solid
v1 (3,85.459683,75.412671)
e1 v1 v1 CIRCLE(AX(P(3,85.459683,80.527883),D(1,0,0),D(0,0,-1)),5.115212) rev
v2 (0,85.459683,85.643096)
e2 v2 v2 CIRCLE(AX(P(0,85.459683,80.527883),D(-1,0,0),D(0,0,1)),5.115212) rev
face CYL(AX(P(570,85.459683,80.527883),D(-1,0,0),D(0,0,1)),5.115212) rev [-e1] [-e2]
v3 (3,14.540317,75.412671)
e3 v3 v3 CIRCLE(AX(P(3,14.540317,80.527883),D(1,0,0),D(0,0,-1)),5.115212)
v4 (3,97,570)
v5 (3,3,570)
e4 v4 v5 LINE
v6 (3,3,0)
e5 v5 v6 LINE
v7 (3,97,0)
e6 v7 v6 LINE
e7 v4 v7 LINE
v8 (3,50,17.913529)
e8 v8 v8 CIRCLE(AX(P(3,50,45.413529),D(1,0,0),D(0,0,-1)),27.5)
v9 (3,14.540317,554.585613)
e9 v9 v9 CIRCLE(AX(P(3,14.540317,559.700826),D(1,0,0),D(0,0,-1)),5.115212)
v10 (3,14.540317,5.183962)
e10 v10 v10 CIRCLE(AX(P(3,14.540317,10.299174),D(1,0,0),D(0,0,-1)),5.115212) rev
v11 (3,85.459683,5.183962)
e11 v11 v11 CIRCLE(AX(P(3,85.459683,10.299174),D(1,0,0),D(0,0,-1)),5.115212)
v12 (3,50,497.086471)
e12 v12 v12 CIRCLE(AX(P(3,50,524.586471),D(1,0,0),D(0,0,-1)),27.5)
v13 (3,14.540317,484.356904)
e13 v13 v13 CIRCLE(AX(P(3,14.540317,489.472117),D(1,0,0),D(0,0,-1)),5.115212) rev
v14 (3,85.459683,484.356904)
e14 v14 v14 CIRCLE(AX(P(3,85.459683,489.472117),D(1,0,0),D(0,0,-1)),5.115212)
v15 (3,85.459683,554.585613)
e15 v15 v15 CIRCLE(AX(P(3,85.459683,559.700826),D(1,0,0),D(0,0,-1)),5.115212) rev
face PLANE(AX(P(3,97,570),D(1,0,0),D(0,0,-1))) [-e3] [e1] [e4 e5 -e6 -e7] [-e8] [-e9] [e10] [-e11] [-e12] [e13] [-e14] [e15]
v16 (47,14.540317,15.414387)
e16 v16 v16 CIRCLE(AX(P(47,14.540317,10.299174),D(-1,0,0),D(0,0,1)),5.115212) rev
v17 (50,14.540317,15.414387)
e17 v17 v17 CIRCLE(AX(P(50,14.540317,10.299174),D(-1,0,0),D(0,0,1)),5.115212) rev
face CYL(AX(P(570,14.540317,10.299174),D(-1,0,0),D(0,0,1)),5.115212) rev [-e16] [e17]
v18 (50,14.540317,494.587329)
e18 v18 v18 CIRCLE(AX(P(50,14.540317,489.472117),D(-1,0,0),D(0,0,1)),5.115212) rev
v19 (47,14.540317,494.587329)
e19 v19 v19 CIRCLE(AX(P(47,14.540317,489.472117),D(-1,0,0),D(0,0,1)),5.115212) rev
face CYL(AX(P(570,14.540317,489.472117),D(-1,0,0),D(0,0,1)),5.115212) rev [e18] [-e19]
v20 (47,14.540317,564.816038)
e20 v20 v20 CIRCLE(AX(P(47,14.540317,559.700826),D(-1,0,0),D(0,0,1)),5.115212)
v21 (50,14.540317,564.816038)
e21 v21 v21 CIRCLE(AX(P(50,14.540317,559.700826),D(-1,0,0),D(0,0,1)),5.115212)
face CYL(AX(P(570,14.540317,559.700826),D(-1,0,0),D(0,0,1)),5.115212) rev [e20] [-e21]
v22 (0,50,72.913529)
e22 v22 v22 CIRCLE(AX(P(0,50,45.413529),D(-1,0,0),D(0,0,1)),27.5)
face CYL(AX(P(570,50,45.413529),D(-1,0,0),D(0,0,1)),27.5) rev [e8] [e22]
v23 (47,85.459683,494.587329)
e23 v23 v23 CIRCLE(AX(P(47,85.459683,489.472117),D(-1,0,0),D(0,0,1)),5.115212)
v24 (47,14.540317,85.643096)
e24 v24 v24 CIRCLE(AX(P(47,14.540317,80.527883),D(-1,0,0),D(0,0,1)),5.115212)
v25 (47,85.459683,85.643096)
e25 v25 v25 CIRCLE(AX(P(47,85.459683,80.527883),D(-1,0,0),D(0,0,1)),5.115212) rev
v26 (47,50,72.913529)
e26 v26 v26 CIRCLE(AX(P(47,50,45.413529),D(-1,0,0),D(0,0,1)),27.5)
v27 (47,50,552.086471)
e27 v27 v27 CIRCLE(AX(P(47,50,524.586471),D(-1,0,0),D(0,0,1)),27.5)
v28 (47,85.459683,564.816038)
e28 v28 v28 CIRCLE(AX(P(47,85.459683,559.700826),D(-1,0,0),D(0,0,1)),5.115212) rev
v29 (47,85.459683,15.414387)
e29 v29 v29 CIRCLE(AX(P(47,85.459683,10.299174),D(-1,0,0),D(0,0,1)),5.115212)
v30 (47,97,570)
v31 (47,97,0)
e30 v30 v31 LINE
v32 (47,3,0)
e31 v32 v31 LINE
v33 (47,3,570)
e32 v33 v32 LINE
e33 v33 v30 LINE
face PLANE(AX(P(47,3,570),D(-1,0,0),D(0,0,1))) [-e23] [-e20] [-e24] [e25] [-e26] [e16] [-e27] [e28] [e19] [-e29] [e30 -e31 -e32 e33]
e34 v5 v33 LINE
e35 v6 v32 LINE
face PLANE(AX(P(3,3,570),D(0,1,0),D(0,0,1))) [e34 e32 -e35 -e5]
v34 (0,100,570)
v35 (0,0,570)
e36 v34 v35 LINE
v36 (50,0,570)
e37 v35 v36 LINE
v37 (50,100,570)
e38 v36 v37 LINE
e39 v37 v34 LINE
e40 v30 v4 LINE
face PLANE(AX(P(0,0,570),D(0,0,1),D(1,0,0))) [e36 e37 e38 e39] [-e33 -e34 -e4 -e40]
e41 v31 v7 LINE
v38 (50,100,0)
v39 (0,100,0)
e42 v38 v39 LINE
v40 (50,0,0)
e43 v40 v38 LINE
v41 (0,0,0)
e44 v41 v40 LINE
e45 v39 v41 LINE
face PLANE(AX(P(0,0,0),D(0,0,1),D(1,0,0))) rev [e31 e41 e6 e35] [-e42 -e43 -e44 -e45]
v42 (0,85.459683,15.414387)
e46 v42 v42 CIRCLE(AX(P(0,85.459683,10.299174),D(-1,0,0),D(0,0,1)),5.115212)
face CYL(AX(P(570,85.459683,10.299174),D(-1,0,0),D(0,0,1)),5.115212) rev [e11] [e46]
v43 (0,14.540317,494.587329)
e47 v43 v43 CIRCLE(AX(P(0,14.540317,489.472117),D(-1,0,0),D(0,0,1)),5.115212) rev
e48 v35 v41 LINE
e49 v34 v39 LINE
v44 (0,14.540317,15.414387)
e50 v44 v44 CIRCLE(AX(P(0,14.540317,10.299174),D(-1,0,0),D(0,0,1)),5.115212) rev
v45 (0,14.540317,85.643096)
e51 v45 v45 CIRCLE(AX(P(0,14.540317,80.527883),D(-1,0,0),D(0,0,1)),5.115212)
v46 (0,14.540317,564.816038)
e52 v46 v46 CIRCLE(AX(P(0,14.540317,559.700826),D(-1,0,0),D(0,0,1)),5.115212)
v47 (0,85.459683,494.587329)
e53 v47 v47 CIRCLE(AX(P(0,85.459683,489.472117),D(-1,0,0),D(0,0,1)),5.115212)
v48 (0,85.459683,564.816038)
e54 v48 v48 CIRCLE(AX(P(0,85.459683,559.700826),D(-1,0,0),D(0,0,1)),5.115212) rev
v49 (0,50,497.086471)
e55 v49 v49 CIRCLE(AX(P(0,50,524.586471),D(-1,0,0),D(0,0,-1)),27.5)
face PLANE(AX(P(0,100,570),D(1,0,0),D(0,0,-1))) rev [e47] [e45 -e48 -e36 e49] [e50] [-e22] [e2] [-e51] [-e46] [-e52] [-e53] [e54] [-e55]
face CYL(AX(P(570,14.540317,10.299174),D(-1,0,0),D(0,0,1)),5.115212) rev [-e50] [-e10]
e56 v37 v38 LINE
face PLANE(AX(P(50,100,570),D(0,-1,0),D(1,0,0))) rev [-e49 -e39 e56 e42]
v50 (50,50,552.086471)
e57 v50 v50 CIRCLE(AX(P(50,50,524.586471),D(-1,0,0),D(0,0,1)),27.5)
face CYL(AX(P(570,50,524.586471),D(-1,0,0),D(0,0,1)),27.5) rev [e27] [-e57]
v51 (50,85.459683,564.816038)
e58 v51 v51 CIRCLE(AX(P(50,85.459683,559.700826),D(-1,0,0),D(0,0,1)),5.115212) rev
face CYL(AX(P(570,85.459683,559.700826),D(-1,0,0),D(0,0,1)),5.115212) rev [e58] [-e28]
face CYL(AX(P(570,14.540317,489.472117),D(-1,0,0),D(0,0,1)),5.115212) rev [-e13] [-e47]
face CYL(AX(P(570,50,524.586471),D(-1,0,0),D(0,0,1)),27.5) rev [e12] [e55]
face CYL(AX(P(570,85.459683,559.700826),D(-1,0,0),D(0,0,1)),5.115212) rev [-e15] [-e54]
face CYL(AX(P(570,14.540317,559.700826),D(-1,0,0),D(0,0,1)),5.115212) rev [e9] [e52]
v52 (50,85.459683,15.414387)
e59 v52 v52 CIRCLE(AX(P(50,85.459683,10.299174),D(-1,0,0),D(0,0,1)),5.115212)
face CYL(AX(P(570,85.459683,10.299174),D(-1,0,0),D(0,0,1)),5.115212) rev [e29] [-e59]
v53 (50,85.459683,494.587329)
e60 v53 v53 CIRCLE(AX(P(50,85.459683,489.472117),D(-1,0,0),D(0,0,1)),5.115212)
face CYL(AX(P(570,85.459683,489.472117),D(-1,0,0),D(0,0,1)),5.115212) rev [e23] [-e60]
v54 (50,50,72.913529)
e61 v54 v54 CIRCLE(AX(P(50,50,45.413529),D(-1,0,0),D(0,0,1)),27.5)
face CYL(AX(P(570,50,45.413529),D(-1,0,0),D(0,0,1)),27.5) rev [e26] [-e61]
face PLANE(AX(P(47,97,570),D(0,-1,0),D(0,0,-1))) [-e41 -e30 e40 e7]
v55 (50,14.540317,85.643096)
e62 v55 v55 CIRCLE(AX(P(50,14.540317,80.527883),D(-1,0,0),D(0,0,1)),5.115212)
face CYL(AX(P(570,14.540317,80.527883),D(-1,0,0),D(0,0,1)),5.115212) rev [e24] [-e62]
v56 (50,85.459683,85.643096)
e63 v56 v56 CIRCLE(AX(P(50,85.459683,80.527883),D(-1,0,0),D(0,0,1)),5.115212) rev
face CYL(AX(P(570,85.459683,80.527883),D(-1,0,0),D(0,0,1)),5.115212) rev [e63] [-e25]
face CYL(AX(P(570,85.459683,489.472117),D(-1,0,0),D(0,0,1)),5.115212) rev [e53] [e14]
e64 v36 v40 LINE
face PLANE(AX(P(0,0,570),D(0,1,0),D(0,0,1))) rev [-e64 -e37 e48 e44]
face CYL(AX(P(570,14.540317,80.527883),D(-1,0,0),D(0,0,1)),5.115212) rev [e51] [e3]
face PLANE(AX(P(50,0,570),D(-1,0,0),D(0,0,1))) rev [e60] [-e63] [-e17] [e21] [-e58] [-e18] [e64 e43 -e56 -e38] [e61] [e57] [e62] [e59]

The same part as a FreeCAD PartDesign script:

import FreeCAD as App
import Part
import Sketcher
Q = App.Units.Quantity

doc = App.newDocument("Part")
params = doc.addObject("Spreadsheet::Sheet", "Params")
for row, (alias, value) in enumerate([
    ("sketch1_width", "50 mm"),
    ("sketch1_width2", "44 mm"),
    ("sketch1_height", "100 mm"),
    ("sketch1_height2", "94 mm"),
    ("pad1_length", "570 mm"),
    ("sketch2_diameter", "55 mm"),
    ("pocket1_length", "570 mm"),
    ("pocket2_length", "570 mm"),
], start=1):
    params.set(f"A{row}", alias)
    params.set(f"B{row}", "=" + value)
    params.setAlias(f"B{row}", alias)

body = doc.addObject("PartDesign::Body", "Body")

# Sketch on XY plane
sketch1 = body.newObject("Sketcher::SketchObject", "Sketch")
sketch1.AttachmentSupport = (doc.getObject("XY_Plane"), [""])
sketch1.MapMode = "FlatFace"
sketch1.addGeometry(Part.LineSegment(App.Vector(0, 100, 0), App.Vector(0, 0, 0)), False)
sketch1.addGeometry(Part.LineSegment(App.Vector(0, 0, 0), App.Vector(50, 0, 0)), False)
sketch1.addGeometry(Part.LineSegment(App.Vector(50, 0, 0), App.Vector(50, 100, 0)), False)
sketch1.addGeometry(Part.LineSegment(App.Vector(50, 100, 0), App.Vector(0, 100, 0)), False)
sketch1.addGeometry(Part.LineSegment(App.Vector(47, 3, 0), App.Vector(3, 3, 0)), False)
sketch1.addGeometry(Part.LineSegment(App.Vector(3, 3, 0), App.Vector(3, 97, 0)), False)
sketch1.addGeometry(Part.LineSegment(App.Vector(3, 97, 0), App.Vector(47, 97, 0)), False)
sketch1.addGeometry(Part.LineSegment(App.Vector(47, 97, 0), App.Vector(47, 3, 0)), False)
sketch1.addConstraint(Sketcher.Constraint("Coincident", 0, 2, 1, 1))
sketch1.addConstraint(Sketcher.Constraint("Coincident", 1, 2, 2, 1))
sketch1.addConstraint(Sketcher.Constraint("Coincident", 2, 2, 3, 1))
sketch1.addConstraint(Sketcher.Constraint("Coincident", 3, 2, 0, 1))
sketch1.addConstraint(Sketcher.Constraint("Coincident", 4, 2, 5, 1))
sketch1.addConstraint(Sketcher.Constraint("Coincident", 5, 2, 6, 1))
sketch1.addConstraint(Sketcher.Constraint("Coincident", 6, 2, 7, 1))
sketch1.addConstraint(Sketcher.Constraint("Coincident", 7, 2, 4, 1))
sketch1.addConstraint(Sketcher.Constraint("Vertical", 0))
sketch1.addConstraint(Sketcher.Constraint("Horizontal", 1))
sketch1.addConstraint(Sketcher.Constraint("Vertical", 2))
sketch1.addConstraint(Sketcher.Constraint("Horizontal", 3))
sketch1.addConstraint(Sketcher.Constraint("Horizontal", 4))
sketch1.addConstraint(Sketcher.Constraint("Vertical", 5))
sketch1.addConstraint(Sketcher.Constraint("Horizontal", 6))
sketch1.addConstraint(Sketcher.Constraint("Vertical", 7))
sketch1.addConstraint(Sketcher.Constraint("Coincident", 0, 2, -1, 1))
sketch1.addConstraint(Sketcher.Constraint("DistanceX", 1, 1, 1, 2, Q("50 mm")))
sketch1.addConstraint(Sketcher.Constraint("DistanceX", 4, 2, 4, 1, Q("44 mm")))
sketch1.addConstraint(Sketcher.Constraint("DistanceY", 0, 2, 0, 1, Q("100 mm")))
sketch1.addConstraint(Sketcher.Constraint("DistanceY", 5, 1, 5, 2, Q("94 mm")))
sketch1.addConstraint(Sketcher.Constraint("DistanceX", -1, 1, 4, 2, Q("3 mm")))
sketch1.addConstraint(Sketcher.Constraint("DistanceY", -1, 1, 4, 2, Q("3 mm")))
sketch1.setExpression("Constraints[17]", "Params.sketch1_width")
sketch1.setExpression("Constraints[18]", "Params.sketch1_width2")
sketch1.setExpression("Constraints[19]", "Params.sketch1_height")
sketch1.setExpression("Constraints[20]", "Params.sketch1_height2")
pad1 = body.newObject("PartDesign::Pad", "Pad")
pad1.Profile = sketch1
pad1.setExpression("Length", "Params.pad1_length")

# Sketch on YZ plane
sketch2 = body.newObject("Sketcher::SketchObject", "Sketch001")
sketch2.AttachmentSupport = (doc.getObject("YZ_Plane"), [""])
sketch2.MapMode = "FlatFace"
sketch2.addGeometry(Part.Circle(App.Vector(50, 45, 0), App.Vector(0, 0, 1), 28), False)
sketch2.addGeometry(Part.Circle(App.Vector(50, 525, 0), App.Vector(0, 0, 1), 28), False)
sketch2.addConstraint(Sketcher.Constraint("Equal", 0, 1))
sketch2.addConstraint(Sketcher.Constraint("Vertical", 0, 3, 1, 3))
sketch2.addConstraint(Sketcher.Constraint("Diameter", 0, Q("55 mm")))
sketch2.addConstraint(Sketcher.Constraint("DistanceX", -1, 1, 0, 3, Q("50 mm")))
sketch2.addConstraint(Sketcher.Constraint("DistanceY", -1, 1, 0, 3, Q("45.413529 mm")))
sketch2.addConstraint(Sketcher.Constraint("DistanceY", -1, 1, 1, 3, Q("524.586471 mm")))
sketch2.setExpression("Constraints[2]", "Params.sketch2_diameter")
pocket1 = body.newObject("PartDesign::Pocket", "Pocket")
pocket1.Profile = sketch2
pocket1.setExpression("Length", "Params.pocket1_length")
pocket1.Reversed = True

# Sketch on YZ plane
sketch3 = body.newObject("Sketcher::SketchObject", "Sketch002")
sketch3.AttachmentSupport = (doc.getObject("YZ_Plane"), [""])
sketch3.MapMode = "FlatFace"
sketch3.addGeometry(Part.Circle(App.Vector(85, 81, 0), App.Vector(0, 0, 1), 5), False)
sketch3.addGeometry(Part.Circle(App.Vector(15, 10, 0), App.Vector(0, 0, 1), 5), False)
sketch3.addGeometry(Part.Circle(App.Vector(15, 81, 0), App.Vector(0, 0, 1), 5), False)
sketch3.addGeometry(Part.Circle(App.Vector(85, 560, 0), App.Vector(0, 0, 1), 5), False)
sketch3.addGeometry(Part.Circle(App.Vector(85, 489, 0), App.Vector(0, 0, 1), 5), False)
sketch3.addGeometry(Part.Circle(App.Vector(15, 489, 0), App.Vector(0, 0, 1), 5), False)
sketch3.addGeometry(Part.Circle(App.Vector(15, 560, 0), App.Vector(0, 0, 1), 5), False)
sketch3.addGeometry(Part.Circle(App.Vector(85, 10, 0), App.Vector(0, 0, 1), 5), False)
sketch3.addConstraint(Sketcher.Constraint("Equal", 0, 1))
sketch3.addConstraint(Sketcher.Constraint("Equal", 1, 2))
sketch3.addConstraint(Sketcher.Constraint("Equal", 2, 3))
sketch3.addConstraint(Sketcher.Constraint("Equal", 3, 4))
sketch3.addConstraint(Sketcher.Constraint("Equal", 4, 5))
sketch3.addConstraint(Sketcher.Constraint("Equal", 5, 6))
sketch3.addConstraint(Sketcher.Constraint("Equal", 6, 7))
sketch3.addConstraint(Sketcher.Constraint("Horizontal", 0, 3, 2, 3))
sketch3.addConstraint(Sketcher.Constraint("Horizontal", 4, 3, 5, 3))
sketch3.addConstraint(Sketcher.Constraint("Horizontal", 3, 3, 6, 3))
sketch3.addConstraint(Sketcher.Constraint("Horizontal", 1, 3, 7, 3))
sketch3.addConstraint(Sketcher.Constraint("Vertical", 1, 3, 2, 3))
sketch3.addConstraint(Sketcher.Constraint("Vertical", 0, 3, 3, 3))
sketch3.addConstraint(Sketcher.Constraint("Vertical", 3, 3, 4, 3))
sketch3.addConstraint(Sketcher.Constraint("Vertical", 2, 3, 5, 3))
sketch3.addConstraint(Sketcher.Constraint("Vertical", 5, 3, 6, 3))
sketch3.addConstraint(Sketcher.Constraint("Vertical", 4, 3, 7, 3))
sketch3.addConstraint(Sketcher.Constraint("Diameter", 0, Q("10.230425 mm")))
sketch3.addConstraint(Sketcher.Constraint("DistanceY", 1, 3, 0, 3, Q("70.228709 mm")))
sketch3.addConstraint(Sketcher.Constraint("DistanceY", 1, 3, 3, 3, Q("549.401651 mm")))
sketch3.addConstraint(Sketcher.Constraint("DistanceY", 4, 3, 3, 3, Q("70.228709 mm")))
sketch3.addConstraint(Sketcher.Constraint("DistanceX", -1, 1, 0, 3, Q("85.459683 mm")))
sketch3.addConstraint(Sketcher.Constraint("DistanceY", -1, 1, 0, 3, Q("80.527883 mm")))
sketch3.addConstraint(Sketcher.Constraint("DistanceX", -1, 1, 1, 3, Q("14.540317 mm")))
pocket2 = body.newObject("PartDesign::Pocket", "Pocket001")
pocket2.Profile = sketch3
pocket2.setExpression("Length", "Params.pocket2_length")
pocket2.Reversed = True

doc.recompute()
